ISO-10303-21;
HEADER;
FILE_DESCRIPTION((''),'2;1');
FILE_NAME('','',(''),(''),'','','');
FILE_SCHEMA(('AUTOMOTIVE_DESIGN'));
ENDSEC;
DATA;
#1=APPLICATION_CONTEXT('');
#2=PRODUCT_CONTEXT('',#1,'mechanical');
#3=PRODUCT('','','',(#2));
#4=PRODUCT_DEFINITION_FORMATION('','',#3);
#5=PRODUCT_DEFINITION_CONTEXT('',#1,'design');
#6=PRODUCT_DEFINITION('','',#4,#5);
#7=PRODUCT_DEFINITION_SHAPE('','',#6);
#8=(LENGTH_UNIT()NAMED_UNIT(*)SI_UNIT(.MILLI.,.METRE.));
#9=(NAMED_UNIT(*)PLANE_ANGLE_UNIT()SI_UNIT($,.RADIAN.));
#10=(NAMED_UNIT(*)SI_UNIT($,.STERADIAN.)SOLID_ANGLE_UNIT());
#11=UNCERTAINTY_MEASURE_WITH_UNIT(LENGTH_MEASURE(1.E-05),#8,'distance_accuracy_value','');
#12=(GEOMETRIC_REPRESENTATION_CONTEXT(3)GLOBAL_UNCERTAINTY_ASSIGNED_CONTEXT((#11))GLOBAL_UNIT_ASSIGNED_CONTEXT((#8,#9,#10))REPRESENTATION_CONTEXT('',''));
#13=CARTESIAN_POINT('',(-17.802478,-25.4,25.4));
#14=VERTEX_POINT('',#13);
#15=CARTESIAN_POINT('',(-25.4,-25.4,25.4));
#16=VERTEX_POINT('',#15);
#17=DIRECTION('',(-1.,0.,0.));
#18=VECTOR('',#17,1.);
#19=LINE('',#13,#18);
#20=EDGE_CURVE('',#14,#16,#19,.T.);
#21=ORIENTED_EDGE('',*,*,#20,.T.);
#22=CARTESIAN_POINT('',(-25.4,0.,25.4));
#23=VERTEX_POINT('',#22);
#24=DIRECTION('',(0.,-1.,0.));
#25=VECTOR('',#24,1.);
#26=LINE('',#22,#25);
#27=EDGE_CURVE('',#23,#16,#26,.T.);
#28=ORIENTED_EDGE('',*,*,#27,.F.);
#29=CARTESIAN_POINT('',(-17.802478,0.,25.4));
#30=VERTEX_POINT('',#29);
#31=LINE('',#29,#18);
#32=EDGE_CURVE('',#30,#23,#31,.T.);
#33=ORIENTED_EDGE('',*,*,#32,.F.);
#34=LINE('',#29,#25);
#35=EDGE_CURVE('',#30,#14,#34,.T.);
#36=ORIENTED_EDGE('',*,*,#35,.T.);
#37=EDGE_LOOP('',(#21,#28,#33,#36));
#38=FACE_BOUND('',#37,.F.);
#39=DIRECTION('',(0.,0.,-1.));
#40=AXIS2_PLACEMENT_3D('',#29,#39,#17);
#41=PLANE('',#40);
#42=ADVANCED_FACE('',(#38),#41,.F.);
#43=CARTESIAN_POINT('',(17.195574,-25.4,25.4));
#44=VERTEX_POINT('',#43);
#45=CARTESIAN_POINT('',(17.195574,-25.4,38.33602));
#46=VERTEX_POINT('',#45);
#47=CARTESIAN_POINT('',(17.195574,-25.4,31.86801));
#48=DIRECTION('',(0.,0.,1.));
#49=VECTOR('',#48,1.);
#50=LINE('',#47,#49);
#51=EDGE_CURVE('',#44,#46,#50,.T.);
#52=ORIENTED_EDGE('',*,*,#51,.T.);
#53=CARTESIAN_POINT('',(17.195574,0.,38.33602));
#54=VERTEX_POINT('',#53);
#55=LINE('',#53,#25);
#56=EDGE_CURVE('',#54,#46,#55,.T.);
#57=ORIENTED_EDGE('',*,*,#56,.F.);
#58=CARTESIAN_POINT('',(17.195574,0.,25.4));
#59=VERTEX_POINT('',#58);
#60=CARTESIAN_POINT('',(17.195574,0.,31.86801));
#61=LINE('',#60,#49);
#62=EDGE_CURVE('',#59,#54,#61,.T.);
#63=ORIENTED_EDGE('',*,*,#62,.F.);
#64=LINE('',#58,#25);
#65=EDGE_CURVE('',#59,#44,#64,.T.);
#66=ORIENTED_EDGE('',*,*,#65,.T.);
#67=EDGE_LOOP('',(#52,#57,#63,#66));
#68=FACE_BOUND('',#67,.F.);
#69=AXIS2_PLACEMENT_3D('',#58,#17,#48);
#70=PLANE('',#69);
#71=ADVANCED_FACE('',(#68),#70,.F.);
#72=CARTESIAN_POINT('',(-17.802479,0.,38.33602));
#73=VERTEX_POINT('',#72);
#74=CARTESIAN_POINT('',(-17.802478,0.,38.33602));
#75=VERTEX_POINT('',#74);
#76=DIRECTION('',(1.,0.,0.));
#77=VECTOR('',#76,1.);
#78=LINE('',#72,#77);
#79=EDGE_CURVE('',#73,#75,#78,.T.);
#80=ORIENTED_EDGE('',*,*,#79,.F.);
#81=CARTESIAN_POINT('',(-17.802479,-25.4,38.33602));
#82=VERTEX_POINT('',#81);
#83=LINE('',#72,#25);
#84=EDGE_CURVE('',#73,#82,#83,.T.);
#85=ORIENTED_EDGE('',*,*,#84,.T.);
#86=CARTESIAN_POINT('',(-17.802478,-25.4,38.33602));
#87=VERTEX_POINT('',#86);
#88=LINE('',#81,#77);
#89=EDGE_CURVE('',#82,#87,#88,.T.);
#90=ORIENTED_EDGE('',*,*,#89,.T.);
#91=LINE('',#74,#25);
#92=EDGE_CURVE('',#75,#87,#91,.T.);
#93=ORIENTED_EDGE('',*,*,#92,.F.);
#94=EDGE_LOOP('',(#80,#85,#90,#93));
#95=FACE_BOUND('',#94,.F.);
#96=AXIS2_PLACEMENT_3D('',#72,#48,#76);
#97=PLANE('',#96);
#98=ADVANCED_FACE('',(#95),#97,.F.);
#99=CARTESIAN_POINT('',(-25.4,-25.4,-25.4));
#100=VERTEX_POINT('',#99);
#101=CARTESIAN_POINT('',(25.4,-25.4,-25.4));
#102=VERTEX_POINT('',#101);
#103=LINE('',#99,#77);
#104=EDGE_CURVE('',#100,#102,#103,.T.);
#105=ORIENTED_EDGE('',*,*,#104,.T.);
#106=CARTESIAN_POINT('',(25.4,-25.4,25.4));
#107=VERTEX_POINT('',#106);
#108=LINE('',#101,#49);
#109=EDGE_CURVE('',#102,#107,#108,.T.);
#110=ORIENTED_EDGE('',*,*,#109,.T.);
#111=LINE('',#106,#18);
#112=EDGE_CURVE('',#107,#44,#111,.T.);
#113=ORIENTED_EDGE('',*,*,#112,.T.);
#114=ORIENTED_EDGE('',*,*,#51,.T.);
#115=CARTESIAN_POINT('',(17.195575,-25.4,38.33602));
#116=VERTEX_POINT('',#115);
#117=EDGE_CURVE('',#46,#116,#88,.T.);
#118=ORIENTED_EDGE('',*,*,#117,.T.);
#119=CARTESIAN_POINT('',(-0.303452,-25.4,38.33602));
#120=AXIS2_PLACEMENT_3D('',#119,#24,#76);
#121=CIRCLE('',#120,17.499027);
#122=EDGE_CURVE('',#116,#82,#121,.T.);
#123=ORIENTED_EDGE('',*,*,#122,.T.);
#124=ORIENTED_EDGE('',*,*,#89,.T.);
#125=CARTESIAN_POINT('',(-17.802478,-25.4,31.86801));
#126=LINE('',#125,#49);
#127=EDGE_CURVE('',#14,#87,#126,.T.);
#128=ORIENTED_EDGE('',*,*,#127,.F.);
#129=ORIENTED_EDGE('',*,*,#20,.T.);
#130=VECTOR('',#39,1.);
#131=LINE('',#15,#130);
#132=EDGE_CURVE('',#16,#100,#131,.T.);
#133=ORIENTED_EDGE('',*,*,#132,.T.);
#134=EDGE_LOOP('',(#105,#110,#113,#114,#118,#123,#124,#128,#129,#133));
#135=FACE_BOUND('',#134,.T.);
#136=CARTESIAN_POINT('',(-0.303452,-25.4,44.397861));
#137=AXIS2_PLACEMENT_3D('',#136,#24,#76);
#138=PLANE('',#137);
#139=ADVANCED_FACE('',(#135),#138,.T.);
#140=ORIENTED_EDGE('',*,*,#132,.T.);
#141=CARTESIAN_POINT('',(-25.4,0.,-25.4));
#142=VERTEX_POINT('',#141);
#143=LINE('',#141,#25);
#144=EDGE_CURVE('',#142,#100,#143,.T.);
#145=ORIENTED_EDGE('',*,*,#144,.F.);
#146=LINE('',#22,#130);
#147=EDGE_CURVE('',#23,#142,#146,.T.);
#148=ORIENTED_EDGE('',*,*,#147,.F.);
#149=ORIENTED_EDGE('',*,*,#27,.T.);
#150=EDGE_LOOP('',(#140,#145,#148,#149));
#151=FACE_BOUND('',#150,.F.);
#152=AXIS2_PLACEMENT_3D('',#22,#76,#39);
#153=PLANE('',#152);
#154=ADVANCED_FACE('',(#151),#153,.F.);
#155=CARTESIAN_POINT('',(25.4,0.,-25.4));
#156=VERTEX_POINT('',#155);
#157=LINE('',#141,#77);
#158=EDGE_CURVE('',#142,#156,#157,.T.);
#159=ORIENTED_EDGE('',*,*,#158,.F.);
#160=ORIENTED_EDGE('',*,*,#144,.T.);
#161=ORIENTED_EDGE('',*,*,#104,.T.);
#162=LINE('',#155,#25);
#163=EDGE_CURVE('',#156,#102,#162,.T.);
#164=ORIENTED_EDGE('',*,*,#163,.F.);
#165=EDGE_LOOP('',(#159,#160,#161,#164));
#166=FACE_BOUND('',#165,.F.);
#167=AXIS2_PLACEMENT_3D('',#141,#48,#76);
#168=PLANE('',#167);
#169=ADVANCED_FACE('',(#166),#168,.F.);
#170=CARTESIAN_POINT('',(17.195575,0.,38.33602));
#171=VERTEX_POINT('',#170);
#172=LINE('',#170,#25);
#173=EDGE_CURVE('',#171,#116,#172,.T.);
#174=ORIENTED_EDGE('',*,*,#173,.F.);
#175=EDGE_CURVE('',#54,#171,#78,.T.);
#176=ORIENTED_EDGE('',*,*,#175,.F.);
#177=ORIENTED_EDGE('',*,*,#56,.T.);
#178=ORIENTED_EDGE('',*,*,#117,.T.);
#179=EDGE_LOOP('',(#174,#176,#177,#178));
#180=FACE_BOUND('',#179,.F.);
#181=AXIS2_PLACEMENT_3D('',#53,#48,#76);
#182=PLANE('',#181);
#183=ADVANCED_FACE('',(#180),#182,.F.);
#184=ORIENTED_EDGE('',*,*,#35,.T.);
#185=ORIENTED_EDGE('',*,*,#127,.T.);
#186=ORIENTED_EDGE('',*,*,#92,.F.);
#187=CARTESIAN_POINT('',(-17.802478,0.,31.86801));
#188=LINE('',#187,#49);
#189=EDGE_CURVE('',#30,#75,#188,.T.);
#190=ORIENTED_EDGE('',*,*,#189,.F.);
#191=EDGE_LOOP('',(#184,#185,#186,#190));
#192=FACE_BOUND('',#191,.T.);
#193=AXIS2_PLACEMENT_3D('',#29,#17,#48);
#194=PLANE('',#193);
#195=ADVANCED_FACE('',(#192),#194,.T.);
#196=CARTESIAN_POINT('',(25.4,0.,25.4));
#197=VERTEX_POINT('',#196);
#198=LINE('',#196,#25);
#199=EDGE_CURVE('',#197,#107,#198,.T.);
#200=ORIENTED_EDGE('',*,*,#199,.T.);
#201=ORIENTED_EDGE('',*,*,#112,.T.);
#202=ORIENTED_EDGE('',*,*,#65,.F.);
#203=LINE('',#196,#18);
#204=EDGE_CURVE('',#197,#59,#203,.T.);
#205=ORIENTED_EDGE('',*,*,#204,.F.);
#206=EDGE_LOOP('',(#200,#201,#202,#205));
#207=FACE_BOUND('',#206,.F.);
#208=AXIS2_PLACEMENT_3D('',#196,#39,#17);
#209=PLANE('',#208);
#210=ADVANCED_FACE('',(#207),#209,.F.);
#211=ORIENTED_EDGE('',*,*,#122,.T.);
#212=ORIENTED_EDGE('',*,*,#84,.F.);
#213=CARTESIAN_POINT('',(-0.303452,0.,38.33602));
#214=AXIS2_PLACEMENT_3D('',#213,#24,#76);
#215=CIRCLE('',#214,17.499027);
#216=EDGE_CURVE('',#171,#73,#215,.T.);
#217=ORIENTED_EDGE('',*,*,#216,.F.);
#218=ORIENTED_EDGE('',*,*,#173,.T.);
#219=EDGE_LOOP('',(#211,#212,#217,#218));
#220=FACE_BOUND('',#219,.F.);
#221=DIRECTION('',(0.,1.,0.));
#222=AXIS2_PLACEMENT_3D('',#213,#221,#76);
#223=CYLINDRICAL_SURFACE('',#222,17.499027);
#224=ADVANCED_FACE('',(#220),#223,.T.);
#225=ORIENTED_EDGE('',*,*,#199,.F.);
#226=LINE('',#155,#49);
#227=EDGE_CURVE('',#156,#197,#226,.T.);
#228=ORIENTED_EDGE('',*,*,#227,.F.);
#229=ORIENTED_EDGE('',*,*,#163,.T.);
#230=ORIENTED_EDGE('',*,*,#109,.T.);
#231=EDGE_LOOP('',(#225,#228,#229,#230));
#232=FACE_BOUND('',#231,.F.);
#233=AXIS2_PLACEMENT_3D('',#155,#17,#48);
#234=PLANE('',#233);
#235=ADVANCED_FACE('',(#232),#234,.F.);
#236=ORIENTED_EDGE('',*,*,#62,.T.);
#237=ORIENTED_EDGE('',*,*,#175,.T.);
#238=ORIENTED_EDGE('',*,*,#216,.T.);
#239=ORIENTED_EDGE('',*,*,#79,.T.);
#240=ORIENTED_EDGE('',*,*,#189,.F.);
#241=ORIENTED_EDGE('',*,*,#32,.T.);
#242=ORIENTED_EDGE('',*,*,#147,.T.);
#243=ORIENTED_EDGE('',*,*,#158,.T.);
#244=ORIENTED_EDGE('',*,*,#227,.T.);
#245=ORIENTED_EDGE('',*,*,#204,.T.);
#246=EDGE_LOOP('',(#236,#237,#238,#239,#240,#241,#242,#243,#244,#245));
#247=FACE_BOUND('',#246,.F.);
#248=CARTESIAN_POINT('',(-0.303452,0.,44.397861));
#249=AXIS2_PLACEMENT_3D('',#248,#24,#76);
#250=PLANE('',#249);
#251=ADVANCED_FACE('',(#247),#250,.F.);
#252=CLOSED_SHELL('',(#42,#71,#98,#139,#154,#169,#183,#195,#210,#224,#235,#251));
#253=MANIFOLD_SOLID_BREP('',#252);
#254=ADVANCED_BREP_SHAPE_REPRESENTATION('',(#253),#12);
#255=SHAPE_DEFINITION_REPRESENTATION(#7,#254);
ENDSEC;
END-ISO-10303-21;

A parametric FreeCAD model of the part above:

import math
import FreeCAD as App
import Part
import Sketcher
Q = App.Units.Quantity

doc = App.newDocument("Part")
body = doc.addObject("PartDesign::Body", "Body")

# Sketch on XZ plane
sketch1 = body.newObject("Sketcher::SketchObject", "Sketch")
sketch1.AttachmentSupport = (doc.getObject("XZ_Plane"), [""])
sketch1.MapMode = "FlatFace"
sketch1.addGeometry([
    Part.LineSegment(App.Vector(17.195575, 38.33602, 0), App.Vector(17.195574, 38.33602, 0)),  # 0
    Part.ArcOfCircle(Part.Circle(App.Vector(-0.303452, 38.33602, 0), App.Vector(0, 0, 1), 17.499027), math.radians(0), math.radians(180)),  # 1
    Part.LineSegment(App.Vector(-17.802478, 38.33602, 0), App.Vector(-17.802479, 38.33602, 0)),  # 2
    Part.LineSegment(App.Vector(-17.802478, 38.33602, 0), App.Vector(-17.802478, 25.4, 0)),  # 3
    Part.LineSegment(App.Vector(-17.802478, 25.4, 0), App.Vector(-25.4, 25.4, 0)),  # 4
    Part.LineSegment(App.Vector(-25.4, 25.4, 0), App.Vector(-25.4, -25.4, 0)),  # 5
    Part.LineSegment(App.Vector(-25.4, -25.4, 0), App.Vector(25.4, -25.4, 0)),  # 6
    Part.LineSegment(App.Vector(25.4, -25.4, 0), App.Vector(25.4, 25.4, 0)),  # 7
    Part.LineSegment(App.Vector(25.4, 25.4, 0), App.Vector(17.195574, 25.4, 0)),  # 8
    Part.LineSegment(App.Vector(17.195574, 25.4, 0), App.Vector(17.195574, 38.33602, 0)),  # 9
], False)
sketch1.addConstraint([
    Sketcher.Constraint("Coincident", 0, 1, 1, 1),
    Sketcher.Constraint("Coincident", 1, 2, 2, 1),
    Sketcher.Constraint("Coincident", 2, 2, 3, 1),
    Sketcher.Constraint("Coincident", 3, 2, 4, 1),
    Sketcher.Constraint("Coincident", 4, 2, 5, 1),
    Sketcher.Constraint("Coincident", 5, 2, 6, 1),
    Sketcher.Constraint("Coincident", 6, 2, 7, 1),
    Sketcher.Constraint("Coincident", 7, 2, 8, 1),
    Sketcher.Constraint("Coincident", 8, 2, 9, 1),
    Sketcher.Constraint("Coincident", 9, 2, 0, 2),
    Sketcher.Constraint("Horizontal", 0),
    Sketcher.Constraint("Horizontal", 2),
    Sketcher.Constraint("Vertical", 3),
    Sketcher.Constraint("Horizontal", 4),
    Sketcher.Constraint("Vertical", 5),
    Sketcher.Constraint("Horizontal", 6),
    Sketcher.Constraint("Vertical", 7),
    Sketcher.Constraint("Horizontal", 8),
    Sketcher.Constraint("Vertical", 9),
    Sketcher.Constraint("DistanceX", 6, 1, 6, 2, Q("2 in")),
    Sketcher.Constraint("DistanceY", 5, 2, 5, 1, Q("2 in")),
    Sketcher.Constraint("DistanceY", 7, 1, 7, 2, Q("2 in")),
    Sketcher.Constraint("DistanceY", -1, 1, 3, 2, Q("1 in")),
    Sketcher.Constraint("DistanceX", 4, 2, -1, 1, Q("1 in")),
    Sketcher.Constraint("Radius", 1, 17.499027),
    Sketcher.Constraint("DistanceX", 4, 2, 4, 1, 7.597521),
    Sketcher.Constraint("DistanceY", 3, 2, 3, 1, 12.93602),
    Sketcher.Constraint("DistanceY", 9, 1, 9, 2, 12.93602),
    Sketcher.Constraint("DistanceX", 8, 2, 8, 1, 8.204425),
    Sketcher.Constraint("DistanceY", -1, 1, 1, 3, 38.33602),
    Sketcher.Constraint("DistanceX", 1, 2, -1, 1, 17.802479),
])
pad1 = body.newObject("PartDesign::Pad", "Pad")
pad1.Profile = sketch1
pad1.Length = Q("1 in")

doc.recompute()
